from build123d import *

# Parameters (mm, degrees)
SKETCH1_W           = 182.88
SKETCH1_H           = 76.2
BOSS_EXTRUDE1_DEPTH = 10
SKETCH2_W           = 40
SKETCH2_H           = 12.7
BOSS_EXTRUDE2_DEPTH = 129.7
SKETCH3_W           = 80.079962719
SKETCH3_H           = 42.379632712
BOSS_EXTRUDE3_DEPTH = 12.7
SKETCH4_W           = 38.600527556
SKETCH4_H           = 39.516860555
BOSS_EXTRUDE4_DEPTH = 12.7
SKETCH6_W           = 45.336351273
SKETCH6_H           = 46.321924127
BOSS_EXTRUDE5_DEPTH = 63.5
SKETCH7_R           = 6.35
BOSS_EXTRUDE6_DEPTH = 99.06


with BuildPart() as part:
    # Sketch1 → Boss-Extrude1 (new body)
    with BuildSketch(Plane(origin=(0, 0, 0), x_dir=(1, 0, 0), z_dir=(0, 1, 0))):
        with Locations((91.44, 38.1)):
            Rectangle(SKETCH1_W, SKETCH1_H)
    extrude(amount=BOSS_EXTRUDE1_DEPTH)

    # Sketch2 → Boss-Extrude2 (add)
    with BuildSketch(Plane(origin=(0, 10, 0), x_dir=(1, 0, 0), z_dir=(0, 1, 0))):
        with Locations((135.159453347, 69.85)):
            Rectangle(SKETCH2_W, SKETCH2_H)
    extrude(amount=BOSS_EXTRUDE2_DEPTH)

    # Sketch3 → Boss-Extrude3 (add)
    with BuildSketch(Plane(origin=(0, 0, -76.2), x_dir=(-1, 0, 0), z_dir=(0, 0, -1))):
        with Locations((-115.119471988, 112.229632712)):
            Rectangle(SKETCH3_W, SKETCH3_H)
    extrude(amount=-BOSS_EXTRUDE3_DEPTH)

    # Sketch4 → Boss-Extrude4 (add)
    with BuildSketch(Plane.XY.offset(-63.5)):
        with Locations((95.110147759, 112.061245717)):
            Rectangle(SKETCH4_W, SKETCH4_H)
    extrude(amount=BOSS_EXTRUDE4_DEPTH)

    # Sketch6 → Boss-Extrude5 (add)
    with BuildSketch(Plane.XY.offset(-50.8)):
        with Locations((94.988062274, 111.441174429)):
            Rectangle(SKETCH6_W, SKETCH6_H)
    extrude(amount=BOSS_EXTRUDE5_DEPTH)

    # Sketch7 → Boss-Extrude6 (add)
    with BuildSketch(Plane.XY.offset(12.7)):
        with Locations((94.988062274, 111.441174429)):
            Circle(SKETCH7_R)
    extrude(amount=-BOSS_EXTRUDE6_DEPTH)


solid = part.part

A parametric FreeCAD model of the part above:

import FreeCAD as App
import Part
import Sketcher
Q = App.Units.Quantity


def add_polygon(sketch, points):
    """Adds a closed chain of lines whose ends are joined by coincident constraints."""
    first, n = sketch.GeometryCount, len(points)
    for a, b in zip(points, points[1:] + points[:1]):
        sketch.addGeometry(Part.LineSegment(App.Vector(*a, 0), App.Vector(*b, 0)), False)
    for i in range(n):
        sketch.addConstraint(Sketcher.Constraint("Coincident", first + i, 2, first + (i + 1) % n, 1))

doc = App.newDocument("Part")
body = doc.addObject("PartDesign::Body", "Body")

# Sketch on XZ plane
sketch1 = body.newObject("Sketcher::SketchObject", "Sketch")
sketch1.AttachmentSupport = (doc.getObject("XZ_Plane"), [""])
sketch1.MapMode = "FlatFace"
add_polygon(sketch1, [(0, -76), (0, 0), (183, 0), (183, -76)])  # lines 0-3
sketch1.addConstraint(Sketcher.Constraint("Vertical", 0))
sketch1.addConstraint(Sketcher.Constraint("Horizontal", 1))
sketch1.addConstraint(Sketcher.Constraint("Vertical", 2))
sketch1.addConstraint(Sketcher.Constraint("Horizontal", 3))
sketch1.addConstraint(Sketcher.Constraint("Coincident", 0, 2, -1, 1))
sketch1.addConstraint(Sketcher.Constraint("DistanceY", 0, 1, 0, 2, Q("3 in")))
sketch1.addConstraint(Sketcher.Constraint("DistanceX", 1, 1, 1, 2, Q("7.2 in")))
pad1 = body.newObject("PartDesign::Pad", "Pad")
pad1.Profile = sketch1
pad1.Length = 10
pad1.Reversed = True

# Sketch on XZ plane
sketch2 = body.newObject("Sketcher::SketchObject", "Sketch001")
sketch2.AttachmentSupport = (doc.getObject("XZ_Plane"), [""])
sketch2.MapMode = "FlatFace"
sketch2.AttachmentOffset = App.Placement(App.Vector(0, 0, -10), App.Rotation())
add_polygon(sketch2, [(115, -76), (115, -64), (155, -64), (155, -76)])  # lines 0-3
sketch2.addConstraint(Sketcher.Constraint("Vertical", 0))
sketch2.addConstraint(Sketcher.Constraint("Horizontal", 1))
sketch2.addConstraint(Sketcher.Constraint("Vertical", 2))
sketch2.addConstraint(Sketcher.Constraint("Horizontal", 3))
sketch2.addConstraint(Sketcher.Constraint("DistanceY", 0, 1, 0, 2, Q("0.5 in")))
sketch2.addConstraint(Sketcher.Constraint("DistanceY", 2, 2, -1, 1, Q("3 in")))
sketch2.addConstraint(Sketcher.Constraint("DistanceX", 1, 1, 1, 2, Q("40 mm")))
sketch2.addConstraint(Sketcher.Constraint("DistanceX", -1, 1, 0, 2, Q("115.159453 mm")))
pad2 = body.newObject("PartDesign::Pad", "Pad001")
pad2.Profile = sketch2
pad2.Length = 129.7
pad2.Reversed = True

# Sketch on XY plane
sketch3 = body.newObject("Sketcher::SketchObject", "Sketch002")
sketch3.AttachmentSupport = (doc.getObject("XY_Plane"), [""])
sketch3.MapMode = "FlatFace"
sketch3.AttachmentOffset = App.Placement(App.Vector(0, 0, -3 * 25.4), App.Rotation())
add_polygon(sketch3, [(155, 133), (155, 91), (75, 91), (75, 133)])  # lines 0-3
sketch3.addConstraint(Sketcher.Constraint("Vertical", 0))
sketch3.addConstraint(Sketcher.Constraint("Horizontal", 1))
sketch3.addConstraint(Sketcher.Constraint("Vertical", 2))
sketch3.addConstraint(Sketcher.Constraint("Horizontal", 3))
sketch3.addConstraint(Sketcher.Constraint("DistanceX", 1, 2, 1, 1, Q("80.079963 mm")))
sketch3.addConstraint(Sketcher.Constraint("DistanceY", 0, 2, 0, 1, Q("42.379633 mm")))
sketch3.addConstraint(Sketcher.Constraint("DistanceX", -1, 1, 1, 2, Q("75.079491 mm")))
sketch3.addConstraint(Sketcher.Constraint("DistanceY", -1, 1, 2, 2, Q("133.419449 mm")))
pad3 = body.newObject("PartDesign::Pad", "Pad002")
pad3.Profile = sketch3
pad3.Length = Q("0.5 in")

# Sketch on XY plane
sketch4 = body.newObject("Sketcher::SketchObject", "Sketch003")
sketch4.AttachmentSupport = (doc.getObject("XY_Plane"), [""])
sketch4.MapMode = "FlatFace"
sketch4.AttachmentOffset = App.Placement(App.Vector(0, 0, -2.5 * 25.4), App.Rotation())
add_polygon(sketch4, [(76, 132), (76, 92), (114, 92), (114, 132)])  # lines 0-3
sketch4.addConstraint(Sketcher.Constraint("Vertical", 0))
sketch4.addConstraint(Sketcher.Constraint("Horizontal", 1))
sketch4.addConstraint(Sketcher.Constraint("Vertical", 2))
sketch4.addConstraint(Sketcher.Constraint("Horizontal", 3))
sketch4.addConstraint(Sketcher.Constraint("DistanceY", 0, 2, 0, 1, Q("39.516861 mm")))
sketch4.addConstraint(Sketcher.Constraint("DistanceX", 1, 1, 1, 2, Q("38.600528 mm")))
sketch4.addConstraint(Sketcher.Constraint("DistanceX", -1, 1, 1, 2, Q("114.410412 mm")))
sketch4.addConstraint(Sketcher.Constraint("DistanceY", -1, 1, 0, 2, Q("92.302815 mm")))
pad4 = body.newObject("PartDesign::Pad", "Pad003")
pad4.Profile = sketch4
pad4.Length = Q("0.5 in")

# Sketch on XY plane
sketch5 = body.newObject("Sketcher::SketchObject", "Sketch004")
sketch5.AttachmentSupport = (doc.getObject("XY_Plane"), [""])
sketch5.MapMode = "FlatFace"
sketch5.AttachmentOffset = App.Placement(App.Vector(0, 0, -2 * 25.4), App.Rotation())
add_polygon(sketch5, [(72, 135), (72, 88), (118, 88), (118, 135)])  # lines 0-3
sketch5.addConstraint(Sketcher.Constraint("Vertical", 0))
sketch5.addConstraint(Sketcher.Constraint("Horizontal", 1))
sketch5.addConstraint(Sketcher.Constraint("Vertical", 2))
sketch5.addConstraint(Sketcher.Constraint("Horizontal", 3))
sketch5.addConstraint(Sketcher.Constraint("DistanceX", 1, 1, 1, 2, Q("45.336351 mm")))
sketch5.addConstraint(Sketcher.Constraint("DistanceY", 0, 2, 0, 1, Q("46.321924 mm")))
sketch5.addConstraint(Sketcher.Constraint("DistanceX", -1, 1, 0, 2, Q("72.319887 mm")))
sketch5.addConstraint(Sketcher.Constraint("DistanceY", -1, 1, 0, 2, Q("88.280212 mm")))
pad5 = body.newObject("PartDesign::Pad", "Pad004")
pad5.Profile = sketch5
pad5.Length = Q("2.5 in")

# Sketch on XY plane
sketch6 = body.newObject("Sketcher::SketchObject", "Sketch005")
sketch6.AttachmentSupport = (doc.getObject("XY_Plane"), [""])
sketch6.MapMode = "FlatFace"
sketch6.AttachmentOffset = App.Placement(App.Vector(0, 0, 0.5 * 25.4), App.Rotation())
sketch6.addGeometry(Part.Circle(App.Vector(95, 111, 0), App.Vector(0, 0, 1), 6), False)
sketch6.addConstraint(Sketcher.Constraint("Diameter", 0, Q("0.5 in")))
sketch6.addConstraint(Sketcher.Constraint("DistanceX", -1, 1, 0, 3, Q("94.988062 mm")))
sketch6.addConstraint(Sketcher.Constraint("DistanceY", -1, 1, 0, 3, Q("111.441174 mm")))
pad6 = body.newObject("PartDesign::Pad", "Pad005")
pad6.Profile = sketch6
pad6.Length = Q("3.9 in")
pad6.Reversed = True

doc.recompute()
